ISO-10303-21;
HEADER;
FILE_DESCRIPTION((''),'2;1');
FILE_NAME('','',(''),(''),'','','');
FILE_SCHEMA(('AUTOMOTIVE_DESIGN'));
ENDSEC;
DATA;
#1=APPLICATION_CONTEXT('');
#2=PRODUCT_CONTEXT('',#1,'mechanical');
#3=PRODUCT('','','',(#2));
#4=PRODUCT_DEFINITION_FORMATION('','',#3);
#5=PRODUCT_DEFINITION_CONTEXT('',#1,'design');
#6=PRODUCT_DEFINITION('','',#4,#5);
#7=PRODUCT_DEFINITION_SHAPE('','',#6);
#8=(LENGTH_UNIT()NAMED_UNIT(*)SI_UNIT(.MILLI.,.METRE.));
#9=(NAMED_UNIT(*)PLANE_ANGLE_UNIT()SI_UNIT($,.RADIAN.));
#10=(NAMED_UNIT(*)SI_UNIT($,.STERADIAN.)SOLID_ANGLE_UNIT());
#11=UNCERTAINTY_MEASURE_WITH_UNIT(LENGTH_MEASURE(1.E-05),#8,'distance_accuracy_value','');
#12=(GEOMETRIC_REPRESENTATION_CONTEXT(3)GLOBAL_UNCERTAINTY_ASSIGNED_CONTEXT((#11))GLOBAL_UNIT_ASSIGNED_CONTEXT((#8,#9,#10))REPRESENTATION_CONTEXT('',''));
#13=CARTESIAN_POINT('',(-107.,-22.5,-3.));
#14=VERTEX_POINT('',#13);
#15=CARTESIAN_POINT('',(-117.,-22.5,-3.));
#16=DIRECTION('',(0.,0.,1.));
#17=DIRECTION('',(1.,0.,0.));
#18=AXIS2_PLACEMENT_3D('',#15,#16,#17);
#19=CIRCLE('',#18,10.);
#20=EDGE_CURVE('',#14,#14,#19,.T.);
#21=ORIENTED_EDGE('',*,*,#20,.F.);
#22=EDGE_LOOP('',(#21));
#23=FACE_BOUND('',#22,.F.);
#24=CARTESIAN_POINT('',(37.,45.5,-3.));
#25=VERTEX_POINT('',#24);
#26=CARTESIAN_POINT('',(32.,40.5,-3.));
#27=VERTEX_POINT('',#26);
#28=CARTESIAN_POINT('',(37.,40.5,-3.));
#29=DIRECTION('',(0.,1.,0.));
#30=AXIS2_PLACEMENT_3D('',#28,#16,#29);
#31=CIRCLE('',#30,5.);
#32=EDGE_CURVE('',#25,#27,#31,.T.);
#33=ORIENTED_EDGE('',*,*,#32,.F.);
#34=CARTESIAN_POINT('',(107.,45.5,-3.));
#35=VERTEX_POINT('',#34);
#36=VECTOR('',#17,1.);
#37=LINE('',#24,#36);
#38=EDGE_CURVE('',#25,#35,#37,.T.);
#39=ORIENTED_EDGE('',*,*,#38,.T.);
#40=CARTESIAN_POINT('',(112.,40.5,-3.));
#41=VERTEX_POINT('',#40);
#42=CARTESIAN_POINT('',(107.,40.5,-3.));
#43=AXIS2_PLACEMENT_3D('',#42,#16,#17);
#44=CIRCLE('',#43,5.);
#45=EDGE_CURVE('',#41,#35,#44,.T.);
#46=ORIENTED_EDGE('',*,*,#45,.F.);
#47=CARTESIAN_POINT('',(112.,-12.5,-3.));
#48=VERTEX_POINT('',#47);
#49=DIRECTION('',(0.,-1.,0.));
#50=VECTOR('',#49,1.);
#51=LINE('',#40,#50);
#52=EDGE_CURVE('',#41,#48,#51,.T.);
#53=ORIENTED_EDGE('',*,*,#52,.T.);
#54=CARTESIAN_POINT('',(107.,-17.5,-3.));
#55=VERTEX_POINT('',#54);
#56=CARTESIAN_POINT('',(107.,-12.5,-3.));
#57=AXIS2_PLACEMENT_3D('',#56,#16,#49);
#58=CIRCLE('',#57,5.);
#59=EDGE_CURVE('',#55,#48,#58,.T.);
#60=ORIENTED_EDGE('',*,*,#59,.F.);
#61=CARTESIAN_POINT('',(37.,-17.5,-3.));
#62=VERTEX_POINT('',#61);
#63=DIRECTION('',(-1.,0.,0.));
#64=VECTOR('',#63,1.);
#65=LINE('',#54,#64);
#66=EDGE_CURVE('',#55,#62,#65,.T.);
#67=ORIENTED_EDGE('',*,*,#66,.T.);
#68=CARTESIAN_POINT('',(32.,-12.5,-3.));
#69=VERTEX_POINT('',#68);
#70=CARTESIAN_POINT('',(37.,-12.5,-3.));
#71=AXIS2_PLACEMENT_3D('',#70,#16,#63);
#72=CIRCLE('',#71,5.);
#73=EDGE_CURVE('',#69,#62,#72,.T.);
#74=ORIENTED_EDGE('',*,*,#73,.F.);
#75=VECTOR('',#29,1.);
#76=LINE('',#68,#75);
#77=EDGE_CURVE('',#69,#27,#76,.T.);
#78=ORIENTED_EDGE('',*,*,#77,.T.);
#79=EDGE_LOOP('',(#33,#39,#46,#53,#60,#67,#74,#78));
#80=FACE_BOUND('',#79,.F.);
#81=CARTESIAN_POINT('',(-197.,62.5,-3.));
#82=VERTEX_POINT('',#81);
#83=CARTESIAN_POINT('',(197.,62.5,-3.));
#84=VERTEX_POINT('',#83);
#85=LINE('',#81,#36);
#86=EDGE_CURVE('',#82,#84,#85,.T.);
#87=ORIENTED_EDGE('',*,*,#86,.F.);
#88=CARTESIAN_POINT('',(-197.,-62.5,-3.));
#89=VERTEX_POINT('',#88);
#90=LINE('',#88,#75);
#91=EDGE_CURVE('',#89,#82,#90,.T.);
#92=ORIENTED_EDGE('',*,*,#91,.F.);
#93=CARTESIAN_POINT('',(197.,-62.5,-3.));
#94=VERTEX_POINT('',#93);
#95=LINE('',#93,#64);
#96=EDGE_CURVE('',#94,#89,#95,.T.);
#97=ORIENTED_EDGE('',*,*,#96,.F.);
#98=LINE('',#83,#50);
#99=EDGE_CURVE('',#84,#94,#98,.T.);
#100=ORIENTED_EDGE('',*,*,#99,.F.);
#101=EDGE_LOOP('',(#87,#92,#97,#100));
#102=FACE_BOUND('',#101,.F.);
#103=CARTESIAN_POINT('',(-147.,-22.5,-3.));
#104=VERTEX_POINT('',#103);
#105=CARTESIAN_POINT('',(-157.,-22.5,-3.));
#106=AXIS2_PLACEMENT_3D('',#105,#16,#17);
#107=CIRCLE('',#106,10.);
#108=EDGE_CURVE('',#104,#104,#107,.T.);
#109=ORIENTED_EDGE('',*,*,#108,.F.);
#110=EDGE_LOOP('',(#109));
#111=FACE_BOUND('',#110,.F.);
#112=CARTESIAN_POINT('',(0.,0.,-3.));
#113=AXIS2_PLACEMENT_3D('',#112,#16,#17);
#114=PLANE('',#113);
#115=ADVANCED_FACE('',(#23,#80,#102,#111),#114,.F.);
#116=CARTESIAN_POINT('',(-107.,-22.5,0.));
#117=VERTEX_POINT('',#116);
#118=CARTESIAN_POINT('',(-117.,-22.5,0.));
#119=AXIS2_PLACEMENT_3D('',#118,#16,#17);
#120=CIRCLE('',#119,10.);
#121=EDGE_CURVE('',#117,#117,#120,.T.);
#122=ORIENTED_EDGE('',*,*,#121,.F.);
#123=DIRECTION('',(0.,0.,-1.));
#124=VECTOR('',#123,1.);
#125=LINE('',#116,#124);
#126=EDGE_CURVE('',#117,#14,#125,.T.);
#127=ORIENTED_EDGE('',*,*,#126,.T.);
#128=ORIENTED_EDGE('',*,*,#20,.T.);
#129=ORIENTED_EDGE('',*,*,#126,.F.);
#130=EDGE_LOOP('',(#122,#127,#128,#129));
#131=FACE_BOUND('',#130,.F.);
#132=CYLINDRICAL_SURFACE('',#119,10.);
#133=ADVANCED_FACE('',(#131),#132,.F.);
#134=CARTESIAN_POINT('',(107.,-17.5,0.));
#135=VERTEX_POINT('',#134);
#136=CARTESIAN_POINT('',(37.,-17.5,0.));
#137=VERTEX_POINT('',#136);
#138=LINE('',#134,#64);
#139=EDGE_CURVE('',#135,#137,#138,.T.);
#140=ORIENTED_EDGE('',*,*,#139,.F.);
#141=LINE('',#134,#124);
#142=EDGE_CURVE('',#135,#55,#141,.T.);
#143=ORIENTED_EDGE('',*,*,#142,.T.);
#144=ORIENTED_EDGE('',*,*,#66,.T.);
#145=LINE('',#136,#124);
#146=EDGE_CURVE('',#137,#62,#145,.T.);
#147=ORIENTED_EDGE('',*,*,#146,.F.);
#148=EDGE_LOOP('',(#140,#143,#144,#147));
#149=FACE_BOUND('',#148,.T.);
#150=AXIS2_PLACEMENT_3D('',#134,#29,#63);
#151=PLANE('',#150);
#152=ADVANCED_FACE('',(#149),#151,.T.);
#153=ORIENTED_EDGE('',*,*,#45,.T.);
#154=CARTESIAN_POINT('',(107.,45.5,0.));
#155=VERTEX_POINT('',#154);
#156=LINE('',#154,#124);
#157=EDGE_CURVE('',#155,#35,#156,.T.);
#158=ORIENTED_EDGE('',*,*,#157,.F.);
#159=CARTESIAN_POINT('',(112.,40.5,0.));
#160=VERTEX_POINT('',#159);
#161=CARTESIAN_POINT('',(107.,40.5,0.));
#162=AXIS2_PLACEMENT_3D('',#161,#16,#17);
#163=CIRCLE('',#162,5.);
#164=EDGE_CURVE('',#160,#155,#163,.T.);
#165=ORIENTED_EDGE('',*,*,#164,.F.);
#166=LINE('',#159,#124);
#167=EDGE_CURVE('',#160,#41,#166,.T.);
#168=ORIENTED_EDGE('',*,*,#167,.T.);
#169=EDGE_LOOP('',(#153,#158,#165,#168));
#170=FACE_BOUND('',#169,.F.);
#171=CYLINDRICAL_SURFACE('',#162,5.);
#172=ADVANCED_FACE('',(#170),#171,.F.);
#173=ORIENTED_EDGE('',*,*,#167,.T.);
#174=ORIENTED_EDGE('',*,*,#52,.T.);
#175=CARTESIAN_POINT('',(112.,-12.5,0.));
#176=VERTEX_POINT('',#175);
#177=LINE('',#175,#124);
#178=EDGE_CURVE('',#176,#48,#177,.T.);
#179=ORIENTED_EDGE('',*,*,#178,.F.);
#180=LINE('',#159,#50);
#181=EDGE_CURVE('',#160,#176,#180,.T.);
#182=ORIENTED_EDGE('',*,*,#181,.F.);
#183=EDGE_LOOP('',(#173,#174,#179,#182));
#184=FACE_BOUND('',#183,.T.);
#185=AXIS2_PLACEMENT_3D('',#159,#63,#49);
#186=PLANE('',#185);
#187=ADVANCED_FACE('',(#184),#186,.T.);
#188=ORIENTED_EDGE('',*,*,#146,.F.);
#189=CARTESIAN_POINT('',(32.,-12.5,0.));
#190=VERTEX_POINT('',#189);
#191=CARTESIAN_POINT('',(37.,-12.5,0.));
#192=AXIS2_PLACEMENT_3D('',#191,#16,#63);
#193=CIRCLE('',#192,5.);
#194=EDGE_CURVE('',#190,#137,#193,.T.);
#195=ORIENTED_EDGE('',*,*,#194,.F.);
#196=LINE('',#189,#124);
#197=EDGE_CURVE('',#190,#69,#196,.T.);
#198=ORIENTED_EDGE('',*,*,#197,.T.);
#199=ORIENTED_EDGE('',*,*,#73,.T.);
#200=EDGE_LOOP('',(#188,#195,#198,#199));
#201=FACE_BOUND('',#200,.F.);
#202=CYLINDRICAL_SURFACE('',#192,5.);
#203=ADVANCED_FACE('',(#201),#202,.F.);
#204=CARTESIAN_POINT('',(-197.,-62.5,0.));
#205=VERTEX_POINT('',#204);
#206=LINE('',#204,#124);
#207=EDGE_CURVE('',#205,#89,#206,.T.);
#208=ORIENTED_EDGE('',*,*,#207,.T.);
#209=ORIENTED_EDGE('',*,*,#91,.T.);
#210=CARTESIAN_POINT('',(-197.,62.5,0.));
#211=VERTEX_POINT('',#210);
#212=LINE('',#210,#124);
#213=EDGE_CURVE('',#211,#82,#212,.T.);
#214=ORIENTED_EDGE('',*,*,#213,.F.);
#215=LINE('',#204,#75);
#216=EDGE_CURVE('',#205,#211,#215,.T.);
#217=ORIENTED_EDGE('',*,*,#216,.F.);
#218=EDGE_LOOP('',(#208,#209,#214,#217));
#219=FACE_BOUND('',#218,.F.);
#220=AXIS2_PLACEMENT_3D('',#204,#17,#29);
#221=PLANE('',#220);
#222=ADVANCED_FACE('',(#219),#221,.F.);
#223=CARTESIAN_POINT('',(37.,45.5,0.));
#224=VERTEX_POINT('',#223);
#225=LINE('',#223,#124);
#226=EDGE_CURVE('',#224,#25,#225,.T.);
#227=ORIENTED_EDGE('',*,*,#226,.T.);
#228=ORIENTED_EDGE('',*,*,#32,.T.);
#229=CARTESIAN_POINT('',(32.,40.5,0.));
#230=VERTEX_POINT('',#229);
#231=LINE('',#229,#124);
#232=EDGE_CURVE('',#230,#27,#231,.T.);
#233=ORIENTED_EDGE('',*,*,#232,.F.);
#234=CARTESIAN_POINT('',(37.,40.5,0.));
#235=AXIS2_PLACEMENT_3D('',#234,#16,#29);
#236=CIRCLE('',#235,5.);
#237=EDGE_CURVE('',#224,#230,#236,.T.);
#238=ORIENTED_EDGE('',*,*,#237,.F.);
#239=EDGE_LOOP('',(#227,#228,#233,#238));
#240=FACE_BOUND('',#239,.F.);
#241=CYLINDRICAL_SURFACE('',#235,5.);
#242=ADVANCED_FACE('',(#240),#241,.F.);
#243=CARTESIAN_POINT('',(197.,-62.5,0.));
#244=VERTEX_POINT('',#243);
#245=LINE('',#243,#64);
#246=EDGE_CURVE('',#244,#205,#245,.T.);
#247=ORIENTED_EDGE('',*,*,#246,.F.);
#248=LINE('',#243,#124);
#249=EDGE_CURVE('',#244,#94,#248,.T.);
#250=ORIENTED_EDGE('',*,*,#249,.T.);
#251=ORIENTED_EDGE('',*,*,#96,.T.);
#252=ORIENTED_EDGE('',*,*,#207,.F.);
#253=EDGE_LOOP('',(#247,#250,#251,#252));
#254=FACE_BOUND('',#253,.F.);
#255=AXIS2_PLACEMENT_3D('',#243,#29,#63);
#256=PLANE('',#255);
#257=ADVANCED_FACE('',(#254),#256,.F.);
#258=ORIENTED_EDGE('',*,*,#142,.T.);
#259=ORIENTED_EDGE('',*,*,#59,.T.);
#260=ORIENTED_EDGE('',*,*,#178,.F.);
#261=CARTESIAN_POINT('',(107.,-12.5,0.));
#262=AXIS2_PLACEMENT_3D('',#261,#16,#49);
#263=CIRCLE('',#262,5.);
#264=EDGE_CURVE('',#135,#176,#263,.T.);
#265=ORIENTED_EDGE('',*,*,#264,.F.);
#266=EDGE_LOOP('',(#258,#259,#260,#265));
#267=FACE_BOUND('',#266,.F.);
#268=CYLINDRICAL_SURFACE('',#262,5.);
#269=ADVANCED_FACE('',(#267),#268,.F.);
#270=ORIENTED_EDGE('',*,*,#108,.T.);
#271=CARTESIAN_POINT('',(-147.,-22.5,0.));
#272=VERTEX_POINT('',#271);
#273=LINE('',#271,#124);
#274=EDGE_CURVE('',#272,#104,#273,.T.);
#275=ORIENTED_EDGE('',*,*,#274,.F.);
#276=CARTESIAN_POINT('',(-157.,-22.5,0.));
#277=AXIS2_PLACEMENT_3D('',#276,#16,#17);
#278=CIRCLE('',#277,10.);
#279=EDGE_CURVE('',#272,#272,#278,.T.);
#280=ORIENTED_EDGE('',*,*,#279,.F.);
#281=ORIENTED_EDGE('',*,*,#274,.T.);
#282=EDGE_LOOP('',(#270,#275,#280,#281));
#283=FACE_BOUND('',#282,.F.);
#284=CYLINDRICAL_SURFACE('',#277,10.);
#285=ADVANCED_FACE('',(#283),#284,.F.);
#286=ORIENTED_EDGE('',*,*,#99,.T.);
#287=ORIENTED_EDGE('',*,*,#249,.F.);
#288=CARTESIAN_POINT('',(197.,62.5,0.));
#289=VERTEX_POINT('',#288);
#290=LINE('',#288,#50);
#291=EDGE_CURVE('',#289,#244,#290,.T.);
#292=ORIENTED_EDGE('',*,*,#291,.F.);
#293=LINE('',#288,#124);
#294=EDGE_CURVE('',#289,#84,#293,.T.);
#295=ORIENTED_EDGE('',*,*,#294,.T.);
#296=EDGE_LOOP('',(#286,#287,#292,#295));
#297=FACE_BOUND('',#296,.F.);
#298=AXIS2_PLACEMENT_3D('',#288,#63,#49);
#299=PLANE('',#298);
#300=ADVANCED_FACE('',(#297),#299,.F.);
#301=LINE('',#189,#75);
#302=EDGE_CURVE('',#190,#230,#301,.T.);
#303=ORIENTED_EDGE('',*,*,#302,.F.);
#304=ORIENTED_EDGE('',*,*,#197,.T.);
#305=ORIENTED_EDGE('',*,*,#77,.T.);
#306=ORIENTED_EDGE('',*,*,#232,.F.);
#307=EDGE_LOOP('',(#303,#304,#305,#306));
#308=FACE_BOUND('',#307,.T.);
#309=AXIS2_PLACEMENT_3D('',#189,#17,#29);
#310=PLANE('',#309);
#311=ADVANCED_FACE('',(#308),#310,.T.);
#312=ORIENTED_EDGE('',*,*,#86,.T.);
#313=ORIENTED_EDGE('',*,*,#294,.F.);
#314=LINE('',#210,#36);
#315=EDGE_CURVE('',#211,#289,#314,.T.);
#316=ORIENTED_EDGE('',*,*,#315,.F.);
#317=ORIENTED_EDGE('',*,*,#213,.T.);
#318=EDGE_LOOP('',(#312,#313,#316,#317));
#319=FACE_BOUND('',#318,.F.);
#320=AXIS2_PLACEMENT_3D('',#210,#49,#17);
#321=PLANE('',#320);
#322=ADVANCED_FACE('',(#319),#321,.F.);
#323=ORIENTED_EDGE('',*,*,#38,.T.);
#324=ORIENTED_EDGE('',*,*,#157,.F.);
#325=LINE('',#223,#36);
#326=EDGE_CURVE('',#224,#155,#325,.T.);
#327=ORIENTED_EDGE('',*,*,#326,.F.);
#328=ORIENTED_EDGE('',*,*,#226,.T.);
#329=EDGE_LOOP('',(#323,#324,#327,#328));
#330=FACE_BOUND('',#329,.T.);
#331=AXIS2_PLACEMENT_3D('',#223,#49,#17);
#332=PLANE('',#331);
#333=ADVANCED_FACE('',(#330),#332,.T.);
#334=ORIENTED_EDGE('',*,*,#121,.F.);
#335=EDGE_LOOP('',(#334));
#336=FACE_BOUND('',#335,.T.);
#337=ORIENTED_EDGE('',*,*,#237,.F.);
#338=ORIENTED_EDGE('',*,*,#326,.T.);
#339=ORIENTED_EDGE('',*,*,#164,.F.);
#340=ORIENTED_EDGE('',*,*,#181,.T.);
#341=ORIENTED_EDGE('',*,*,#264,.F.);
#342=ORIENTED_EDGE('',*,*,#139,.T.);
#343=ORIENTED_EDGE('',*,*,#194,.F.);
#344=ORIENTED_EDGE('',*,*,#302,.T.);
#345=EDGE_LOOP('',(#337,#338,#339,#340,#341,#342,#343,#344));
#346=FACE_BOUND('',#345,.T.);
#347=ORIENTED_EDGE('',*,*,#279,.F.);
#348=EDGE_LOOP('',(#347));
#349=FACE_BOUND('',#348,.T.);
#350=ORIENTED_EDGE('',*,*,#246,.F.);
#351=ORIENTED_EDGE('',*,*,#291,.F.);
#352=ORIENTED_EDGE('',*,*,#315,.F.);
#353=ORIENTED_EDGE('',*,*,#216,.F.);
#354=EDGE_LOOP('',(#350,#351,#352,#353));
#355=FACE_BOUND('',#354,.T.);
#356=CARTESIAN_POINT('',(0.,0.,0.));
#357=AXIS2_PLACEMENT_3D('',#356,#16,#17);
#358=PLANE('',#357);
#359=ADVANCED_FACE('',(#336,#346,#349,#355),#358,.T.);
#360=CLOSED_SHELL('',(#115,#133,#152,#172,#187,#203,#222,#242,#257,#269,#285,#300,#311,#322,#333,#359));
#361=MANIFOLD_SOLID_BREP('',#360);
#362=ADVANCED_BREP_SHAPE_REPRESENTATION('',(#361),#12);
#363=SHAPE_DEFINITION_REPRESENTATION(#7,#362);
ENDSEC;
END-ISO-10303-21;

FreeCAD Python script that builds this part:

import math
import FreeCAD as App
import Part
import Sketcher

V = App.Vector
Q = App.Units.Quantity


def add_polygon(sketch, points):
    """Adds a closed chain of lines whose ends are joined by coincident constraints."""
    first, n = sketch.GeometryCount, len(points)
    for a, b in zip(points, points[1:] + points[:1]):
        sketch.addGeometry(Part.LineSegment(App.Vector(*a, 0), App.Vector(*b, 0)), False)
    for i in range(n):
        sketch.addConstraint(Sketcher.Constraint("Coincident", first + i, 2, first + (i + 1) % n, 1))

doc = App.newDocument("Part")
body = doc.addObject("PartDesign::Body", "Body")

sketch1 = body.newObject("Sketcher::SketchObject", "Sketch")
sketch1.AttachmentSupport = (doc.getObject("XY_Plane"), [""])
sketch1.MapMode = "FlatFace"
add_polygon(sketch1, [(197, 62.5), (-197, 62.5), (-197, -62.5), (197, -62.5)])
sketch1.addConstraint([
    Sketcher.Constraint("Horizontal", 0),
    Sketcher.Constraint("Vertical", 1),
    Sketcher.Constraint("Horizontal", 2),
    Sketcher.Constraint("Vertical", 3),
    Sketcher.Constraint("Symmetric", 0, 2, 2, 2, -1, 1),
    Sketcher.Constraint("DistanceX", 0, 2, 0, 1, Q("394 mm")),
    Sketcher.Constraint("DistanceY", 1, 2, 1, 1, Q("125 mm")),
])
pad1 = body.newObject("PartDesign::Pad", "Pad")
pad1.Profile = sketch1
pad1.Length = 3
pad1.Reversed = True

sketch2 = body.newObject("Sketcher::SketchObject", "Sketch001")
sketch2.AttachmentSupport = (doc.getObject("XY_Plane"), [""])
sketch2.MapMode = "FlatFace"
sketch2.addGeometry([
    Part.Circle(V(-157, -22.5, 0), V(0, 0, 1), 10),
    Part.Circle(V(-117, -22.5, 0), V(0, 0, 1), 10),
    Part.LineSegment(V(107, 45.5, 0), V(37, 45.5, 0)),
    Part.ArcOfCircle(Part.Circle(V(37, 40.5, 0), V(0, 0, 1), 5), math.radians(90), math.radians(180)),
    Part.LineSegment(V(32, 40.5, 0), V(32, -12.5, 0)),
    Part.ArcOfCircle(Part.Circle(V(37, -12.5, 0), V(0, 0, 1), 5), math.radians(180), math.radians(270)),
    Part.LineSegment(V(37, -17.5, 0), V(107, -17.5, 0)),
    Part.ArcOfCircle(Part.Circle(V(107, -12.5, 0), V(0, 0, 1), 5), math.radians(-90), math.radians(0)),
    Part.LineSegment(V(112, -12.5, 0), V(112, 40.5, 0)),
    Part.ArcOfCircle(Part.Circle(V(107, 40.5, 0), V(0, 0, 1), 5), math.radians(0), math.radians(90)),
], False)
sketch2.addConstraint([
    Sketcher.Constraint("Tangent", 2, 2, 3, 1),
    Sketcher.Constraint("Tangent", 3, 2, 4, 1),
    Sketcher.Constraint("Tangent", 4, 2, 5, 1),
    Sketcher.Constraint("Tangent", 5, 2, 6, 1),
    Sketcher.Constraint("Tangent", 6, 2, 7, 1),
    Sketcher.Constraint("Tangent", 7, 2, 8, 1),
    Sketcher.Constraint("Tangent", 8, 2, 9, 1),
    Sketcher.Constraint("Tangent", 9, 2, 2, 1),
    Sketcher.Constraint("Horizontal", 2),
    Sketcher.Constraint("Vertical", 4),
    Sketcher.Constraint("Horizontal", 6),
    Sketcher.Constraint("Vertical", 8),
    Sketcher.Constraint("Equal", 0, 1),
    Sketcher.Constraint("Equal", 3, 5),
    Sketcher.Constraint("Equal", 5, 7),
    Sketcher.Constraint("Equal", 7, 9),
    Sketcher.Constraint("Horizontal", 0, 3, 1, 3),
    Sketcher.Constraint("Diameter", 0, Q("20 mm")),
    Sketcher.Constraint("Radius", 3, Q("5 mm")),
    Sketcher.Constraint("DistanceX", 0, 3, 1, 3, Q("40 mm")),
    Sketcher.Constraint("DistanceY", 1, 3, 3, 3, Q("63 mm")),
    Sketcher.Constraint("DistanceY", 5, 2, 2, 2, Q("63 mm")),
    Sketcher.Constraint("DistanceX", 2, 2, 2, 1, Q("70 mm")),
    Sketcher.Constraint("DistanceX", 0, 3, -1, 1, Q("157 mm")),
    Sketcher.Constraint("DistanceX", -1, 1, 3, 3, Q("37 mm")),
    Sketcher.Constraint("DistanceY", 0, 3, -1, 1, Q("22.5 mm")),
])
pocket1 = body.newObject("PartDesign::Pocket", "Pocket")
pocket1.Profile = sketch2
pocket1.Length = 3

doc.recompute()
